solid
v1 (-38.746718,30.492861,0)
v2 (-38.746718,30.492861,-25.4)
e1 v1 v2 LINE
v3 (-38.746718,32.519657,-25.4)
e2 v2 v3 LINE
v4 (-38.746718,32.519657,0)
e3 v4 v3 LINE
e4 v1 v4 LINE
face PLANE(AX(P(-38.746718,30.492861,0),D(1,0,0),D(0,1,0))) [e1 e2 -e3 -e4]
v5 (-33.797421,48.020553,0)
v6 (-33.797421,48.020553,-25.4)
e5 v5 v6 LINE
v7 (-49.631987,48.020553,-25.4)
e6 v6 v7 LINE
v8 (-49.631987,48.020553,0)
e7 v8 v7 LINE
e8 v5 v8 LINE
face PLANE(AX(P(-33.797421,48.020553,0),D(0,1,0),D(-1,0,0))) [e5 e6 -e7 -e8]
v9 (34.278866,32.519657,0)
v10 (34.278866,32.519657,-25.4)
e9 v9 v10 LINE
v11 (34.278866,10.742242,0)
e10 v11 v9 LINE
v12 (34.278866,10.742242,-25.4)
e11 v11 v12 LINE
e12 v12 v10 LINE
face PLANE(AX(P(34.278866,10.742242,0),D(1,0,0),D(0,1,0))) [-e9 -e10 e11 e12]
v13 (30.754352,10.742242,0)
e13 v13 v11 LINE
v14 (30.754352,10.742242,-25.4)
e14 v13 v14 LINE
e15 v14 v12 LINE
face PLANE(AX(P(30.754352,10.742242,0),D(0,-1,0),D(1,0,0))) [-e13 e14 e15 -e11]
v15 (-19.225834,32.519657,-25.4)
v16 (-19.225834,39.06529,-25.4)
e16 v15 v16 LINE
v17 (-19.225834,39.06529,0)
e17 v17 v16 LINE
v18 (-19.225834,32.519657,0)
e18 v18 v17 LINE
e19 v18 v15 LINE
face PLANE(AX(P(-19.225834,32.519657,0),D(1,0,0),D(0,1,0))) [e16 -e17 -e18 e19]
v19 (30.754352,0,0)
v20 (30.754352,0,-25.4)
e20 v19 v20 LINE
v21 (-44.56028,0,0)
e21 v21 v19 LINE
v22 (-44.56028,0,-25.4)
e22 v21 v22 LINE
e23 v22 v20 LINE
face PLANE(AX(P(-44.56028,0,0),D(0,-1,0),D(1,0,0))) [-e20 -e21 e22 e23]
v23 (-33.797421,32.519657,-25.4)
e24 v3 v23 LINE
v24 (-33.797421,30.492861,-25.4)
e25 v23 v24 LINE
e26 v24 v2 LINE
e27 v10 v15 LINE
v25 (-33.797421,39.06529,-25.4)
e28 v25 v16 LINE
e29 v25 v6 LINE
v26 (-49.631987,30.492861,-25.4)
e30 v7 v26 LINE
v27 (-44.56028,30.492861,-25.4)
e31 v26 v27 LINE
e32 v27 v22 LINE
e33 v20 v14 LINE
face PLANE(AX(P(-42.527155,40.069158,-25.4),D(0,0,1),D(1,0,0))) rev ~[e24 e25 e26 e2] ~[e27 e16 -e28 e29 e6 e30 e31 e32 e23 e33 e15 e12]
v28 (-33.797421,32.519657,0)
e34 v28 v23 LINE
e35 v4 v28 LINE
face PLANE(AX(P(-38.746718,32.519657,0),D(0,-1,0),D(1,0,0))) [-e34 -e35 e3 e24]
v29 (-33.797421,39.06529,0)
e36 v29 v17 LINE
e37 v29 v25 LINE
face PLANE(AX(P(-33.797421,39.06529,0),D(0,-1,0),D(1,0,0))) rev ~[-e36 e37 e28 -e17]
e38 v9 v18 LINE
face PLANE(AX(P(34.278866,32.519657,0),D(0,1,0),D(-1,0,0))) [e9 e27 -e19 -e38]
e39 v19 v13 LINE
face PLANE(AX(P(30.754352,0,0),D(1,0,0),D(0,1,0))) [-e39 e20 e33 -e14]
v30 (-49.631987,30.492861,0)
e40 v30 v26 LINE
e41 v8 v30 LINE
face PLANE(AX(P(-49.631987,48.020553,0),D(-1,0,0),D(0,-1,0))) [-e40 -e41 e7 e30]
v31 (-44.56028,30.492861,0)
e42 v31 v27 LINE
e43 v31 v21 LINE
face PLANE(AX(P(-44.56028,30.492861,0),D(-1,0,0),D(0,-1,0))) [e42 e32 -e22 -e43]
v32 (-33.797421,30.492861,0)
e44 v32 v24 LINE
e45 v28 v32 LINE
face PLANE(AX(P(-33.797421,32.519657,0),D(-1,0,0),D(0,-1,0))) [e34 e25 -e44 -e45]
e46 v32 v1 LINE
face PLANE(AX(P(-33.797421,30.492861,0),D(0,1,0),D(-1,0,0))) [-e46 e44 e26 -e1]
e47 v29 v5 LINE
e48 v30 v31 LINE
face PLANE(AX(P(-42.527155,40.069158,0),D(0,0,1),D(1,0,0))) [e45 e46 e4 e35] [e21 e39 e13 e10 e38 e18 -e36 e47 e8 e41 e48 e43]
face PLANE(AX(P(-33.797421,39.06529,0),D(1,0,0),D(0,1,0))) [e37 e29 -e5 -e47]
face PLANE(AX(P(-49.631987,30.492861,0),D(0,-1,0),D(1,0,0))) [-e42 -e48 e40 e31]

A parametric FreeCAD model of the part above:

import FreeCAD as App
import Part
import Sketcher
Q = App.Units.Quantity

doc = App.newDocument("Part")
body = doc.addObject("PartDesign::Body", "Body")

sketch1 = body.newObject("Sketcher::SketchObject", "Sketch")
sketch1.AttachmentSupport = (doc.getObject("XY_Plane"), [""])
sketch1.MapMode = "FlatFace"
sketch1.addGeometry([
    Part.LineSegment(App.Vector(-19.225834, 32.519657, 0), App.Vector(-19.225834, 39.06529, 0)),
    Part.LineSegment(App.Vector(-19.225834, 39.06529, 0), App.Vector(-33.797421, 39.06529, 0)),
    Part.LineSegment(App.Vector(-33.797421, 39.06529, 0), App.Vector(-33.797421, 48.020553, 0)),
    Part.LineSegment(App.Vector(-33.797421, 48.020553, 0), App.Vector(-49.631987, 48.020553, 0)),
    Part.LineSegment(App.Vector(-49.631987, 48.020553, 0), App.Vector(-49.631987, 30.492861, 0)),
    Part.LineSegment(App.Vector(-49.631987, 30.492861, 0), App.Vector(-44.56028, 30.492861, 0)),
    Part.LineSegment(App.Vector(-44.56028, 30.492861, 0), App.Vector(-44.56028, 0, 0)),
    Part.LineSegment(App.Vector(-44.56028, 0, 0), App.Vector(30.754352, 0, 0)),
    Part.LineSegment(App.Vector(30.754352, 0, 0), App.Vector(30.754352, 10.742242, 0)),
    Part.LineSegment(App.Vector(30.754352, 10.742242, 0), App.Vector(34.278866, 10.742242, 0)),
    Part.LineSegment(App.Vector(34.278866, 10.742242, 0), App.Vector(34.278866, 32.519657, 0)),
    Part.LineSegment(App.Vector(34.278866, 32.519657, 0), App.Vector(-19.225834, 32.519657, 0)),
    Part.LineSegment(App.Vector(-38.746718, 32.519657, 0), App.Vector(-33.797421, 32.519657, 0)),
    Part.LineSegment(App.Vector(-33.797421, 32.519657, 0), App.Vector(-33.797421, 30.492861, 0)),
    Part.LineSegment(App.Vector(-33.797421, 30.492861, 0), App.Vector(-38.746718, 30.492861, 0)),
    Part.LineSegment(App.Vector(-38.746718, 30.492861, 0), App.Vector(-38.746718, 32.519657, 0)),
], False)
sketch1.addConstraint([
    Sketcher.Constraint("Coincident", 0, 2, 1, 1),
    Sketcher.Constraint("Coincident", 1, 2, 2, 1),
    Sketcher.Constraint("Coincident", 2, 2, 3, 1),
    Sketcher.Constraint("Coincident", 3, 2, 4, 1),
    Sketcher.Constraint("Coincident", 4, 2, 5, 1),
    Sketcher.Constraint("Coincident", 5, 2, 6, 1),
    Sketcher.Constraint("Coincident", 6, 2, 7, 1),
    Sketcher.Constraint("Coincident", 7, 2, 8, 1),
    Sketcher.Constraint("Coincident", 8, 2, 9, 1),
    Sketcher.Constraint("Coincident", 9, 2, 10, 1),
    Sketcher.Constraint("Coincident", 10, 2, 11, 1),
    Sketcher.Constraint("Coincident", 11, 2, 0, 1),
    Sketcher.Constraint("Coincident", 12, 2, 13, 1),
    Sketcher.Constraint("Coincident", 13, 2, 14, 1),
    Sketcher.Constraint("Coincident", 14, 2, 15, 1),
    Sketcher.Constraint("Coincident", 15, 2, 12, 1),
    Sketcher.Constraint("Vertical", 0),
    Sketcher.Constraint("Horizontal", 1),
    Sketcher.Constraint("Vertical", 2),
    Sketcher.Constraint("Horizontal", 3),
    Sketcher.Constraint("Vertical", 4),
    Sketcher.Constraint("Horizontal", 5),
    Sketcher.Constraint("Vertical", 6),
    Sketcher.Constraint("Horizontal", 7),
    Sketcher.Constraint("Vertical", 8),
    Sketcher.Constraint("Horizontal", 9),
    Sketcher.Constraint("Vertical", 10),
    Sketcher.Constraint("Horizontal", 11),
    Sketcher.Constraint("Horizontal", 12),
    Sketcher.Constraint("Vertical", 13),
    Sketcher.Constraint("Horizontal", 14),
    Sketcher.Constraint("Vertical", 15),
    Sketcher.Constraint("PointOnObject", 6, 2, -1),
    Sketcher.Constraint("Horizontal", 11, 2, 12, 2),
    Sketcher.Constraint("Horizontal", 5, 2, 13, 2),
    Sketcher.Constraint("Vertical", 2, 2, 12, 2),
    Sketcher.Constraint("DistanceX", 11, 2, 11, 1, 53.5047),
    Sketcher.Constraint("DistanceX", 7, 1, 7, 2, 75.314632),
    Sketcher.Constraint("DistanceY", 6, 2, 6, 1, 30.492861),
    Sketcher.Constraint("DistanceY", 8, 1, 8, 2, 10.742242),
    Sketcher.Constraint("DistanceX", 1, 2, 1, 1, 14.571587),
    Sketcher.Constraint("DistanceX", 3, 2, 3, 1, 15.834566),
    Sketcher.Constraint("DistanceX", 5, 1, 5, 2, 5.071707),
    Sketcher.Constraint("DistanceX", 12, 1, 12, 2, 4.949298),
    Sketcher.Constraint("DistanceY", 0, 1, 0, 2, 6.545633),
    Sketcher.Constraint("DistanceY", 2, 1, 2, 2, 8.955263),
    Sketcher.Constraint("DistanceY", 4, 2, 4, 1, 17.527692),
    Sketcher.Constraint("DistanceX", 1, 2, -1, 1, 33.797421),
])
pad1 = body.newObject("PartDesign::Pad", "Pad")
pad1.Profile = sketch1
pad1.Length = Q("1 in")
pad1.Reversed = True

doc.recompute()
